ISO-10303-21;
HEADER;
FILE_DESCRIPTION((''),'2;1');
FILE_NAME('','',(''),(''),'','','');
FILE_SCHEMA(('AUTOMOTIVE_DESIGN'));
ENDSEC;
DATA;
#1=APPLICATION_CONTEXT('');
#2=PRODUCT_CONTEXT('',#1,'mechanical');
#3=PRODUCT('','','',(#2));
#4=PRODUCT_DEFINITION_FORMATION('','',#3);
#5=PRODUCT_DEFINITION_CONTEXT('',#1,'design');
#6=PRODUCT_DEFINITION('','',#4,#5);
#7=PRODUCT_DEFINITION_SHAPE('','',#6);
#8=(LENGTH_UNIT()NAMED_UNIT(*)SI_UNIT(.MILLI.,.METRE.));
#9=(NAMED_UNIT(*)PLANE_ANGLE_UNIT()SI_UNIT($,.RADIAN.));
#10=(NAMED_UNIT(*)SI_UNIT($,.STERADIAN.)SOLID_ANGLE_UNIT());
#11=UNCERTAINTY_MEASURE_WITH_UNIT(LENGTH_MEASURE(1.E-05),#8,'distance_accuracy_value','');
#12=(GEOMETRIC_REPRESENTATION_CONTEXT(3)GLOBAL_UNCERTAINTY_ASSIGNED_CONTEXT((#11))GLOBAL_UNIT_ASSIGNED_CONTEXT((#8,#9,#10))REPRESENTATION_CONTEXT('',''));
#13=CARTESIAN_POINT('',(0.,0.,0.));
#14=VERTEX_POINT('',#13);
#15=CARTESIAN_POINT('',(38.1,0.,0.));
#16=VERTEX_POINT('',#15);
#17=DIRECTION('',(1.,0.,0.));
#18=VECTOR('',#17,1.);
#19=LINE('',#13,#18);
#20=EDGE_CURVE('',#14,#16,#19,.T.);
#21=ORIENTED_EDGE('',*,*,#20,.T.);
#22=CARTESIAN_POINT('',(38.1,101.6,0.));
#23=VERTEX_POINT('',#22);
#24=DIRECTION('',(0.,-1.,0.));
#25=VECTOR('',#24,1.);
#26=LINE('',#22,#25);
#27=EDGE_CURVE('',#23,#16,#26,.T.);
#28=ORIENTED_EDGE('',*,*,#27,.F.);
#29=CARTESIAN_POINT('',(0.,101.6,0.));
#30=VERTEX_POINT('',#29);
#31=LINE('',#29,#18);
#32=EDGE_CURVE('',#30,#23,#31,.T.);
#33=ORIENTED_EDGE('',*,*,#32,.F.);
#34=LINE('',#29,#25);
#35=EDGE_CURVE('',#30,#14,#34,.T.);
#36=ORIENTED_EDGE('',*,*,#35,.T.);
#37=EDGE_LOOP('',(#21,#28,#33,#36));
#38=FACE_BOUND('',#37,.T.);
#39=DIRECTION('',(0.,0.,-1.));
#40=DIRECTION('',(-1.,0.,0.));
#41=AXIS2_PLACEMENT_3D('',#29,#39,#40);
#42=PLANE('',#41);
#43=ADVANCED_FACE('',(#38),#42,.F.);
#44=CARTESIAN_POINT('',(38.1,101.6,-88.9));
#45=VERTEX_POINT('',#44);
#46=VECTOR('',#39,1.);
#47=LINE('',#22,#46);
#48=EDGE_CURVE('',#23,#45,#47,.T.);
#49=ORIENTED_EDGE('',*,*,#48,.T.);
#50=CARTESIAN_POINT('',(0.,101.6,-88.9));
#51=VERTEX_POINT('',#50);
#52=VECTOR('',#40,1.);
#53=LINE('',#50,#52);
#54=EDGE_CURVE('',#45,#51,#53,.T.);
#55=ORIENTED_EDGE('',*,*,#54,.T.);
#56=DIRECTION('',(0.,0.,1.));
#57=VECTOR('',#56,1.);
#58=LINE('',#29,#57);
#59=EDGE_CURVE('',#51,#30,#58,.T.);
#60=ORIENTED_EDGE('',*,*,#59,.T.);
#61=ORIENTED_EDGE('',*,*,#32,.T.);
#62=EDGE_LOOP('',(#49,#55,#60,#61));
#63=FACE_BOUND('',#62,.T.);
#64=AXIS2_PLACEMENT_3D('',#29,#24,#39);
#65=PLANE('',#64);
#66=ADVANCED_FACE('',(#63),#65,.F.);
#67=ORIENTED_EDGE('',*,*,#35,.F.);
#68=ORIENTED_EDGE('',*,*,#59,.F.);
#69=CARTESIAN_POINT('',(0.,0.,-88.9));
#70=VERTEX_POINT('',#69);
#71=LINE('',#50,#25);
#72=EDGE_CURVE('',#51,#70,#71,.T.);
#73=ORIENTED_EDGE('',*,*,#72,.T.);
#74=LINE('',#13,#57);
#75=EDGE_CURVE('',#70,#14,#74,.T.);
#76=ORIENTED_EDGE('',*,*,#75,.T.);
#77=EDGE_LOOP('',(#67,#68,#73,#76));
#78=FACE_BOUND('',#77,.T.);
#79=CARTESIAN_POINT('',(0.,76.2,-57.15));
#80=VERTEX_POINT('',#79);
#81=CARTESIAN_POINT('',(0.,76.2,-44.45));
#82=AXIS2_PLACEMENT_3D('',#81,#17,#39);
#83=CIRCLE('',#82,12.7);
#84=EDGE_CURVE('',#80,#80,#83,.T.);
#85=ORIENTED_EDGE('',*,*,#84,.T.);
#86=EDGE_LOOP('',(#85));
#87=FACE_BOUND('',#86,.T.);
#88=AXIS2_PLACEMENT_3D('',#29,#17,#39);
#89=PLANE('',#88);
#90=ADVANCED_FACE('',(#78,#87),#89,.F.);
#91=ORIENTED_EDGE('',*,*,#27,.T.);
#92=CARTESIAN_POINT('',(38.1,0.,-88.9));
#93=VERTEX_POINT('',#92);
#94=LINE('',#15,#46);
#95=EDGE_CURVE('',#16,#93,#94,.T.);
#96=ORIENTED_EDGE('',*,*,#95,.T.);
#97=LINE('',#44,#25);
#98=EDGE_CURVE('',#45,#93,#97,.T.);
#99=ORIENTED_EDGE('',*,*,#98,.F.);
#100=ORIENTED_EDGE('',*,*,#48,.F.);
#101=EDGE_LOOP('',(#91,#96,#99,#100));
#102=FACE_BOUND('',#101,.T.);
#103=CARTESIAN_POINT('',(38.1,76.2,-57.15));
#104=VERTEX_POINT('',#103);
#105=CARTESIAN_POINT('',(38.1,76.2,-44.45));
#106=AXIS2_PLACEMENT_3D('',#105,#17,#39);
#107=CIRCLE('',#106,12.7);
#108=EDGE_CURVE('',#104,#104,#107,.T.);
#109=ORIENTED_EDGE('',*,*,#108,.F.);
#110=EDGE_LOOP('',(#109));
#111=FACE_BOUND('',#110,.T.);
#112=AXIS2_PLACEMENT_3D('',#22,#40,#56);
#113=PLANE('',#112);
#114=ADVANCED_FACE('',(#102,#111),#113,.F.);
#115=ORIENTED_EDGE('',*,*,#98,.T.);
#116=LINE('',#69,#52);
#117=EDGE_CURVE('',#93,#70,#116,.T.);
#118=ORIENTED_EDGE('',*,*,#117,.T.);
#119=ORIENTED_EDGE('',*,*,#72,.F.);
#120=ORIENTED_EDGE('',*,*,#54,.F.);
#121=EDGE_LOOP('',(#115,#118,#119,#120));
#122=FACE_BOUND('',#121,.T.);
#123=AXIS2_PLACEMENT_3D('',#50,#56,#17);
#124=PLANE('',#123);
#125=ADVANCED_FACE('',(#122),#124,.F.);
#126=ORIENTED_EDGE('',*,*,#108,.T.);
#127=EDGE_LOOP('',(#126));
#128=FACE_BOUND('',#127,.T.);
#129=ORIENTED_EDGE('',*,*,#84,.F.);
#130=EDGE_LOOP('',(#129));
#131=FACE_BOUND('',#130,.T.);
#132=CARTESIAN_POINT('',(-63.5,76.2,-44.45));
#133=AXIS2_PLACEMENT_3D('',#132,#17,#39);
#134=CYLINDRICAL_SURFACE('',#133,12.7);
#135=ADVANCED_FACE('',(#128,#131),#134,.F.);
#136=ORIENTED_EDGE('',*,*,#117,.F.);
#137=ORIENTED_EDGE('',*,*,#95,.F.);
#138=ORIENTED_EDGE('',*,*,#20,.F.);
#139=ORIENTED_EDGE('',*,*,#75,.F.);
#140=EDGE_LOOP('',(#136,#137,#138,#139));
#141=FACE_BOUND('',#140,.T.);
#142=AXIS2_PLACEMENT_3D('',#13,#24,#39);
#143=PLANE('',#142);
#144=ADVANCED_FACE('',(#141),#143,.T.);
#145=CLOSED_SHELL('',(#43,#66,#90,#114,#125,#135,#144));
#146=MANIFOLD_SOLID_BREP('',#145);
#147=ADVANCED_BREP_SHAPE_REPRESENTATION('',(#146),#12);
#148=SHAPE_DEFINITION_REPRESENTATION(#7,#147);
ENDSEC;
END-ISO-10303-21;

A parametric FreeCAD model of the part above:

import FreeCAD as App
import Part
import Sketcher
from FreeCAD import Vector
Q = App.Units.Quantity

doc = App.newDocument("Part")
body = doc.addObject("PartDesign::Body", "Body")

sketch1 = body.newObject("Sketcher::SketchObject", "Sketch")
sketch1.AttachmentSupport = (doc.getObject("XZ_Plane"), [""])
sketch1.MapMode = "FlatFace"
sketch1.addGeometry([
    Part.LineSegment(Vector(0, -89, 0), Vector(0, 0, 0)),
    Part.LineSegment(Vector(0, 0, 0), Vector(38, 0, 0)),
    Part.LineSegment(Vector(38, 0, 0), Vector(38, -89, 0)),
    Part.LineSegment(Vector(38, -89, 0), Vector(0, -89, 0)),
], False)
sketch1.addConstraint([
    Sketcher.Constraint("Coincident", 0, 2, 1, 1),
    Sketcher.Constraint("Coincident", 1, 2, 2, 1),
    Sketcher.Constraint("Coincident", 2, 2, 3, 1),
    Sketcher.Constraint("Coincident", 3, 2, 0, 1),
    Sketcher.Constraint("Vertical", 0),
    Sketcher.Constraint("Horizontal", 1),
    Sketcher.Constraint("Vertical", 2),
    Sketcher.Constraint("Horizontal", 3),
    Sketcher.Constraint("Coincident", 0, 2, -1, 1),
    Sketcher.Constraint("DistanceX", 1, 1, 1, 2, Q("1.5 in")),
    Sketcher.Constraint("DistanceY", 0, 1, 0, 2, Q("3.5 in")),
])
pad1 = body.newObject("PartDesign::Pad", "Pad")
pad1.Profile = sketch1
pad1.Length = Q("4 in")
pad1.Reversed = True

sketch2 = body.newObject("Sketcher::SketchObject", "Sketch001")
sketch2.AttachmentSupport = (doc.getObject("YZ_Plane"), [""])
sketch2.MapMode = "FlatFace"
sketch2.AttachmentOffset = App.Placement(Vector(0, 0, 1.5 * 25.4), App.Rotation())
sketch2.addGeometry(Part.Circle(Vector(76, -44, 0), Vector(0, 0, 1), 13), False)
sketch2.addConstraint([
    Sketcher.Constraint("Diameter", 0, Q("1 in")),
    Sketcher.Constraint("DistanceX", -1, 1, 0, 3, Q("3 in")),
    Sketcher.Constraint("DistanceY", 0, 3, -1, 1, Q("1.75 in")),
])
pocket1 = body.newObject("PartDesign::Pocket", "Pocket")
pocket1.Profile = sketch2
pocket1.Length = Q("4 in")

doc.recompute()
